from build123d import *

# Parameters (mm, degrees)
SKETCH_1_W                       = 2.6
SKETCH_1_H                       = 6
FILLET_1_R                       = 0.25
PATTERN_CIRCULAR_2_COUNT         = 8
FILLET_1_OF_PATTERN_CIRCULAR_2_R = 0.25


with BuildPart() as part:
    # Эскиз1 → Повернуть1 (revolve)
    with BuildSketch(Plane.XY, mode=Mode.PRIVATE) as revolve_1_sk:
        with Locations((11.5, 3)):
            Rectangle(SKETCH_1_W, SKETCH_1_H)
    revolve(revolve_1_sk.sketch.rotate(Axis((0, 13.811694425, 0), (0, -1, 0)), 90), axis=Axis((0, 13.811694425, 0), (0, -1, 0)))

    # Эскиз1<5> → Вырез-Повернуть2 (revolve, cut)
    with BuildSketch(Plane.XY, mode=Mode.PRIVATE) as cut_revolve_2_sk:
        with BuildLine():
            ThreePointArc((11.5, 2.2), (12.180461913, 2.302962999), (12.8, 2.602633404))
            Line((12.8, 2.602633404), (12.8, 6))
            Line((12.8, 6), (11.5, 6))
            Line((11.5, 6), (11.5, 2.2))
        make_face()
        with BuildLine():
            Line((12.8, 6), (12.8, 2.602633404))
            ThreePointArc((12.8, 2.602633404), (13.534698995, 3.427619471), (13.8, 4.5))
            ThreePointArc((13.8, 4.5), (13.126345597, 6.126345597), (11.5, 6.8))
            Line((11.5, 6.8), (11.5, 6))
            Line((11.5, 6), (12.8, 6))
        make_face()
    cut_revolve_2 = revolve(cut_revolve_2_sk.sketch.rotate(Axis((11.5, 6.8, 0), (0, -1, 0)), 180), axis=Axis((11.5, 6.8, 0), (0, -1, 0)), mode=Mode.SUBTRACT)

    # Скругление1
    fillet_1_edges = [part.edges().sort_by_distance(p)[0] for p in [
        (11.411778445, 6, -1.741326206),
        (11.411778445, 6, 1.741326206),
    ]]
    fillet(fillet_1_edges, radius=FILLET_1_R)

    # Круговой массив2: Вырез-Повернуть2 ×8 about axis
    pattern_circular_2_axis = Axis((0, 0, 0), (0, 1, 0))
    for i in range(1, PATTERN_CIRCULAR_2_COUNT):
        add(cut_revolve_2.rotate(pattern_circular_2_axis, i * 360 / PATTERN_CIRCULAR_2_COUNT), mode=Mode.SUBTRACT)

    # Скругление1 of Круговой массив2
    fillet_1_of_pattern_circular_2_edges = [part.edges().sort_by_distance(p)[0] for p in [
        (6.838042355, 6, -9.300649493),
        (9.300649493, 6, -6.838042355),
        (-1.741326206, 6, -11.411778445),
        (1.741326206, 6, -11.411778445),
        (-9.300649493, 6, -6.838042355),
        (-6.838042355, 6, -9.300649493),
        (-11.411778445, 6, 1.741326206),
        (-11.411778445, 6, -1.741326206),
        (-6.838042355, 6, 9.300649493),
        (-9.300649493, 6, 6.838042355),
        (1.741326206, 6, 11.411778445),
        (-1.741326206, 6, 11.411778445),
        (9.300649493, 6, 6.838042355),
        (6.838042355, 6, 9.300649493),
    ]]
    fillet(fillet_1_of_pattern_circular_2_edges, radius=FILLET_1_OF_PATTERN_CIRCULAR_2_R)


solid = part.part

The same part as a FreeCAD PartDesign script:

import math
import FreeCAD as App
import Part
import Sketcher

V = App.Vector
Q = App.Units.Quantity


def edges_at(feature, points):
    """Names of the edges that pass closest to the given points."""
    edges = feature.Shape.Edges
    near = lambda p: min(range(len(edges)), key=lambda i: edges[i].distToShape(Part.Vertex(*p))[0])
    return sorted({f"Edge{near(p) + 1}" for p in points})


def add_polygon(sketch, points):
    """Adds a closed chain of lines whose ends are joined by coincident constraints."""
    first, n = sketch.GeometryCount, len(points)
    for a, b in zip(points, points[1:] + points[:1]):
        sketch.addGeometry(Part.LineSegment(App.Vector(*a, 0), App.Vector(*b, 0)), False)
    for i in range(n):
        sketch.addConstraint(Sketcher.Constraint("Coincident", first + i, 2, first + (i + 1) % n, 1))

doc = App.newDocument("Part")
params = doc.addObject("Spreadsheet::Sheet", "Params")
for row, (alias, value) in enumerate([
    ("sketch1_height", "6 mm"),
    ("sketch1_width", "2.6 mm"),
    ("revolution_angle", "360 deg"),
    ("sketch2_radius", "2.3 mm"),
    ("groove_angle", "360 deg"),
    ("fillet_radius", "0.25 mm"),
    ("fillet2_radius", "0.25 mm"),
], start=1):
    params.set(f"A{row}", alias)
    params.set(f"B{row}", "=" + value)
    params.setAlias(f"B{row}", alias)

body = doc.addObject("PartDesign::Body", "Body")

# Sketch on XY plane
sketch1 = body.newObject("Sketcher::SketchObject", "Sketch")
sketch1.AttachmentSupport = (doc.getObject("XY_Plane"), [""])
sketch1.MapMode = "FlatFace"
add_polygon(sketch1, [(10.2, 6), (10.2, 0), (12.8, 0), (12.8, 6)])  # lines 0-3
sketch1.addConstraint([
    Sketcher.Constraint("Vertical", 0),
    Sketcher.Constraint("Horizontal", 1),
    Sketcher.Constraint("Vertical", 2),
    Sketcher.Constraint("Horizontal", 3),
    Sketcher.Constraint("PointOnObject", 0, 2, -1),
    Sketcher.Constraint("DistanceY", 0, 2, 0, 1, Q("6 mm")),
    Sketcher.Constraint("DistanceX", 1, 1, 1, 2, Q("2.6 mm")),
    Sketcher.Constraint("DistanceX", -1, 1, 0, 2, Q("10.2 mm")),
])
sketch1.setExpression("Constraints[9]", "Params.sketch1_height")
sketch1.setExpression("Constraints[10]", "Params.sketch1_width")
revolution = body.newObject("PartDesign::Revolution", "Revolution")
revolution.Profile = sketch1
revolution.ReferenceAxis = (sketch1, ["V_Axis"])
revolution.setExpression("Angle", "Params.revolution_angle")

# Sketch on XY plane
sketch2 = body.newObject("Sketcher::SketchObject", "Sketch001")
sketch2.AttachmentSupport = (doc.getObject("XY_Plane"), [""])
sketch2.MapMode = "FlatFace"
sketch2.addGeometry([
    Part.ArcOfCircle(Part.Circle(V(11.5, 4.5, 0), V(0, 0, 1), 2.3), math.radians(-90), math.radians(-56)),
    Part.ArcOfCircle(Part.Circle(V(11.5, 4.5, 0), V(0, 0, 1), 2.3), math.radians(-56), math.radians(0)),
    Part.ArcOfCircle(Part.Circle(V(11.5, 4.5, 0), V(0, 0, 1), 2.3), math.radians(0), math.radians(90)),
    Part.LineSegment(V(11.5, 6.8, 0), V(11.5, 2.2, 0)),
], False)
sketch2.addGeometry(Part.LineSegment(V(11.5, 6.8, 0), V(11.5, 2.2, 0)), True)  # axis
sketch2.addConstraint([
    Sketcher.Constraint("Tangent", 0, 2, 1, 1),
    Sketcher.Constraint("Tangent", 1, 2, 2, 1),
    Sketcher.Constraint("Coincident", 2, 2, 3, 1),
    Sketcher.Constraint("Coincident", 3, 2, 0, 1),
    Sketcher.Constraint("Vertical", 3),
    Sketcher.Constraint("Vertical", 4),
    Sketcher.Constraint("Coincident", 2, 3, 0, 3),
    Sketcher.Constraint("Coincident", 4, 1, 2, 2),
    Sketcher.Constraint("Horizontal", 2, 3, 1, 2),
    Sketcher.Constraint("Vertical", 1, 3, 2, 2),
    Sketcher.Constraint("Equal", 3, 4),
    Sketcher.Constraint("Radius", 0, Q("2.3 mm")),
    Sketcher.Constraint("DistanceX", 0, 2, 1, 2, Q("1 mm")),
    Sketcher.Constraint("DistanceX", -1, 1, 0, 3, Q("11.5 mm")),
    Sketcher.Constraint("DistanceY", -1, 1, 0, 3, Q("4.5 mm")),
])
sketch2.setExpression("Constraints[11]", "Params.sketch2_radius")
groove = body.newObject("PartDesign::Groove", "Groove")
groove.Profile = sketch2
groove.ReferenceAxis = (sketch2, ["Axis0"])
groove.setExpression("Angle", "Params.groove_angle")
doc.recompute()

fillet = body.newObject("PartDesign::Fillet", "Fillet")
fillet.Base = (groove, edges_at(groove, [(11.412, 6, -1.741), (11.412, 6, 1.741)]))
fillet.setExpression("Radius", "Params.fillet_radius")
doc.recompute()

polarpattern = body.newObject("PartDesign::PolarPattern", "PolarPattern")
polarpattern.Originals = [groove]
polarpattern.Axis = (doc.getObject("Y_Axis"), [""])
polarpattern.Angle = 360
polarpattern.Occurrences = 8
body.Tip = polarpattern
doc.recompute()

fillet2 = body.newObject("PartDesign::Fillet", "Fillet001")
fillet2.Base = (polarpattern, edges_at(polarpattern, [
    (6.838, 6, -9.301),
    (9.301, 6, -6.838),
    (-1.741, 6, -11.412),
    (1.741, 6, -11.412),
    (-9.301, 6, -6.838),
    (-6.838, 6, -9.301),
    (-11.412, 6, 1.741),
    (-11.412, 6, -1.741),
    (-6.838, 6, 9.301),
    (-9.301, 6, 6.838),
    (1.741, 6, 11.412),
    (-1.741, 6, 11.412),
    (9.301, 6, 6.838),
    (6.838, 6, 9.301),
]))
fillet2.setExpression("Radius", "Params.fillet2_radius")

doc.recompute()
